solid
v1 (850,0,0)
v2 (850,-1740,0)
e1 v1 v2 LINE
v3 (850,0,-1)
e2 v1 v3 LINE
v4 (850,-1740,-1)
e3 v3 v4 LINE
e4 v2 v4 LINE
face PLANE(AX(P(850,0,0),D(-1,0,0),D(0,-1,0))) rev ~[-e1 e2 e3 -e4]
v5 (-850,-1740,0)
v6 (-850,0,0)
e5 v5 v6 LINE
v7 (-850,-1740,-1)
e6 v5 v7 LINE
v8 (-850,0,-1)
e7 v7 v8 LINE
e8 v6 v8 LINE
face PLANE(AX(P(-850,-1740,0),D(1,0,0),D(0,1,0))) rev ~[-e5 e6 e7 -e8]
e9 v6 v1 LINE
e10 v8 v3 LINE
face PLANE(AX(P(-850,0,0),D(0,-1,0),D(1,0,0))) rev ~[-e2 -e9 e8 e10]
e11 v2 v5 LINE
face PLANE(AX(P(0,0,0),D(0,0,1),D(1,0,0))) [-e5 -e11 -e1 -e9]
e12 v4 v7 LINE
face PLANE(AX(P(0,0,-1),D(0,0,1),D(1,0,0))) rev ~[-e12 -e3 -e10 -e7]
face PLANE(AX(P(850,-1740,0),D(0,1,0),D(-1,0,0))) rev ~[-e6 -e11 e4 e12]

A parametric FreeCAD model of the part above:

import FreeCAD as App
import Part
import Sketcher


def add_polygon(sketch, points):
    """Adds a closed chain of lines whose ends are joined by coincident constraints."""
    first, n = sketch.GeometryCount, len(points)
    for a, b in zip(points, points[1:] + points[:1]):
        sketch.addGeometry(Part.LineSegment(App.Vector(*a, 0), App.Vector(*b, 0)), False)
    for i in range(n):
        sketch.addConstraint(Sketcher.Constraint("Coincident", first + i, 2, first + (i + 1) % n, 1))

doc = App.newDocument("Part")
body = doc.addObject("PartDesign::Body", "Body")

# Sketch on XY plane
sketch1 = body.newObject("Sketcher::SketchObject", "Sketch")
sketch1.AttachmentSupport = (doc.getObject("XY_Plane"), [""])
sketch1.MapMode = "FlatFace"
add_polygon(sketch1, [(-850, -1740), (850, -1740), (850, 0), (-850, 0)])  # lines 0-3
sketch1.addConstraint([
    Sketcher.Constraint("Horizontal", 0),
    Sketcher.Constraint("Vertical", 1),
    Sketcher.Constraint("Horizontal", 2),
    Sketcher.Constraint("Vertical", 3),
    Sketcher.Constraint("Symmetric", 1, 2, 2, 2, -1, 1),
    Sketcher.Constraint("DistanceX", 0, 1, 0, 2, 1700.0),
    Sketcher.Constraint("DistanceY", 1, 1, 1, 2, 1740.0),
])
pad1 = body.newObject("PartDesign::Pad", "Pad")
pad1.Profile = sketch1
pad1.Length = 1
pad1.Reversed = True

doc.recompute()
